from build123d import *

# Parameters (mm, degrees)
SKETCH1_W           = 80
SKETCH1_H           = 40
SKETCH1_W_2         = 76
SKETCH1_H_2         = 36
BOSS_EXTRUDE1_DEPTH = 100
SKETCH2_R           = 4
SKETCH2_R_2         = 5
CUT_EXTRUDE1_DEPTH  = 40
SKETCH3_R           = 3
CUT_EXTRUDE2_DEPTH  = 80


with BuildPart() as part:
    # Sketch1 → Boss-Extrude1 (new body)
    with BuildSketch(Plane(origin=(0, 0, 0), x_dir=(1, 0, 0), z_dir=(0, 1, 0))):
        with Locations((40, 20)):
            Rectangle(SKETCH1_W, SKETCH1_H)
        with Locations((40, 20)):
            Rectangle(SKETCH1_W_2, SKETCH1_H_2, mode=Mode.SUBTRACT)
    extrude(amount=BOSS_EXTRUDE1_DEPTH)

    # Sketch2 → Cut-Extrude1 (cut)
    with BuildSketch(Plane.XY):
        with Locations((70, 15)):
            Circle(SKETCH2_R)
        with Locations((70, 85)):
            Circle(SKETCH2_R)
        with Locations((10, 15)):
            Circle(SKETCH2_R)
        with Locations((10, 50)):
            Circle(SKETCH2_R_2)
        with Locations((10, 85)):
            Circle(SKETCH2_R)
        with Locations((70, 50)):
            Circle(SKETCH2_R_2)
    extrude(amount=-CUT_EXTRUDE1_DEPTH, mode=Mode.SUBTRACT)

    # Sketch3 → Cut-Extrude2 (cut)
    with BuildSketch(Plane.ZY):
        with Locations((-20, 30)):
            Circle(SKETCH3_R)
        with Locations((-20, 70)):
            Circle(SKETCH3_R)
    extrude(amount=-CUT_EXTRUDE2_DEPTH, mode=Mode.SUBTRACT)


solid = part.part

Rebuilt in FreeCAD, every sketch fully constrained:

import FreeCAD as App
import Part
import Sketcher

V = App.Vector

doc = App.newDocument("Part")
body = doc.addObject("PartDesign::Body", "Body")

# Sketch on XZ plane
sketch1 = doc.addObject("Sketcher::SketchObject", "Sketch")
body.addObject(sketch1)
sketch1.AttachmentSupport = (doc.XZ_Plane, [""])
sketch1.MapMode = "FlatFace"
sketch1.addGeometry([
    Part.LineSegment(V(0, -40, 0), V(0, 0, 0)),  # 0
    Part.LineSegment(V(0, 0, 0), V(80, 0, 0)),  # 1
    Part.LineSegment(V(80, 0, 0), V(80, -40, 0)),  # 2
    Part.LineSegment(V(80, -40, 0), V(0, -40, 0)),  # 3
    Part.LineSegment(V(78, -2, 0), V(2, -2, 0)),  # 4
    Part.LineSegment(V(2, -2, 0), V(2, -38, 0)),  # 5
    Part.LineSegment(V(2, -38, 0), V(78, -38, 0)),  # 6
    Part.LineSegment(V(78, -38, 0), V(78, -2, 0)),  # 7
], False)
sketch1.addConstraint([
    Sketcher.Constraint("Coincident", 0, 2, 1, 1),
    Sketcher.Constraint("Coincident", 1, 2, 2, 1),
    Sketcher.Constraint("Coincident", 2, 2, 3, 1),
    Sketcher.Constraint("Coincident", 3, 2, 0, 1),
    Sketcher.Constraint("Coincident", 4, 2, 5, 1),
    Sketcher.Constraint("Coincident", 5, 2, 6, 1),
    Sketcher.Constraint("Coincident", 6, 2, 7, 1),
    Sketcher.Constraint("Coincident", 7, 2, 4, 1),
    Sketcher.Constraint("Vertical", 0),
    Sketcher.Constraint("Horizontal", 1),
    Sketcher.Constraint("Vertical", 2),
    Sketcher.Constraint("Horizontal", 3),
    Sketcher.Constraint("Horizontal", 4),
    Sketcher.Constraint("Vertical", 5),
    Sketcher.Constraint("Horizontal", 6),
    Sketcher.Constraint("Vertical", 7),
    Sketcher.Constraint("Coincident", 0, 2, -1, 1),
    Sketcher.Constraint("DistanceX", 1, 1, 1, 2, 80.0),
    Sketcher.Constraint("DistanceX", 4, 2, 4, 1, 76.0),
    Sketcher.Constraint("DistanceY", 0, 1, 0, 2, 40.0),
    Sketcher.Constraint("DistanceY", 5, 2, 5, 1, 36.0),
    Sketcher.Constraint("DistanceX", -1, 1, 4, 2, 2.0),
    Sketcher.Constraint("DistanceY", 4, 2, -1, 1, 2.0),
])
pad1 = doc.addObject("PartDesign::Pad", "Pad")
body.addObject(pad1)
pad1.Profile = sketch1
pad1.Length = 100
pad1.Reversed = True

# Sketch on XY plane
sketch2 = doc.addObject("Sketcher::SketchObject", "Sketch001")
body.addObject(sketch2)
sketch2.AttachmentSupport = (doc.XY_Plane, [""])
sketch2.MapMode = "FlatFace"
sketch2.addGeometry([
    Part.Circle(V(70, 15, 0), V(0, 0, 1), 4),  # 0
    Part.Circle(V(70, 85, 0), V(0, 0, 1), 4),  # 1
    Part.Circle(V(10, 15, 0), V(0, 0, 1), 4),  # 2
    Part.Circle(V(10, 50, 0), V(0, 0, 1), 5),  # 3
    Part.Circle(V(10, 85, 0), V(0, 0, 1), 4),  # 4
    Part.Circle(V(70, 50, 0), V(0, 0, 1), 5),  # 5
], False)
sketch2.addConstraint([
    Sketcher.Constraint("Equal", 0, 1),
    Sketcher.Constraint("Equal", 1, 2),
    Sketcher.Constraint("Equal", 2, 4),
    Sketcher.Constraint("Equal", 3, 5),
    Sketcher.Constraint("Horizontal", 0, 3, 2, 3),
    Sketcher.Constraint("Horizontal", 1, 3, 4, 3),
    Sketcher.Constraint("Horizontal", 3, 3, 5, 3),
    Sketcher.Constraint("Vertical", 0, 3, 1, 3),
    Sketcher.Constraint("Vertical", 2, 3, 3, 3),
    Sketcher.Constraint("Vertical", 3, 3, 4, 3),
    Sketcher.Constraint("Vertical", 1, 3, 5, 3),
    Sketcher.Constraint("Diameter", 0, 8.0),
    Sketcher.Constraint("Diameter", 3, 10.0),
    Sketcher.Constraint("DistanceX", -1, 1, 0, 3, 70.0),
    Sketcher.Constraint("DistanceY", -1, 1, 0, 3, 15.0),
    Sketcher.Constraint("DistanceY", -1, 1, 1, 3, 85.0),
    Sketcher.Constraint("DistanceX", -1, 1, 2, 3, 10.0),
    Sketcher.Constraint("DistanceY", -1, 1, 3, 3, 50.0),
])
pocket1 = doc.addObject("PartDesign::Pocket", "Pocket")
body.addObject(pocket1)
pocket1.Profile = sketch2
pocket1.Length = 40

# Sketch on YZ plane
sketch3 = doc.addObject("Sketcher::SketchObject", "Sketch002")
body.addObject(sketch3)
sketch3.AttachmentSupport = (doc.YZ_Plane, [""])
sketch3.MapMode = "FlatFace"
sketch3.addGeometry([
    Part.Circle(V(30, -20, 0), V(0, 0, 1), 3),
    Part.Circle(V(70, -20, 0), V(0, 0, 1), 3),
], False)
sketch3.addConstraint([
    Sketcher.Constraint("Equal", 0, 1),
    Sketcher.Constraint("Horizontal", 0, 3, 1, 3),
    Sketcher.Constraint("Diameter", 0, 6.0),
    Sketcher.Constraint("DistanceX", -1, 1, 0, 3, 30.0),
    Sketcher.Constraint("DistanceY", 0, 3, -1, 1, 20.0),
    Sketcher.Constraint("DistanceX", -1, 1, 1, 3, 70.0),
])
pocket2 = doc.addObject("PartDesign::Pocket", "Pocket001")
body.addObject(pocket2)
pocket2.Profile = sketch3
pocket2.Length = 80
pocket2.Reversed = True

doc.recompute()
